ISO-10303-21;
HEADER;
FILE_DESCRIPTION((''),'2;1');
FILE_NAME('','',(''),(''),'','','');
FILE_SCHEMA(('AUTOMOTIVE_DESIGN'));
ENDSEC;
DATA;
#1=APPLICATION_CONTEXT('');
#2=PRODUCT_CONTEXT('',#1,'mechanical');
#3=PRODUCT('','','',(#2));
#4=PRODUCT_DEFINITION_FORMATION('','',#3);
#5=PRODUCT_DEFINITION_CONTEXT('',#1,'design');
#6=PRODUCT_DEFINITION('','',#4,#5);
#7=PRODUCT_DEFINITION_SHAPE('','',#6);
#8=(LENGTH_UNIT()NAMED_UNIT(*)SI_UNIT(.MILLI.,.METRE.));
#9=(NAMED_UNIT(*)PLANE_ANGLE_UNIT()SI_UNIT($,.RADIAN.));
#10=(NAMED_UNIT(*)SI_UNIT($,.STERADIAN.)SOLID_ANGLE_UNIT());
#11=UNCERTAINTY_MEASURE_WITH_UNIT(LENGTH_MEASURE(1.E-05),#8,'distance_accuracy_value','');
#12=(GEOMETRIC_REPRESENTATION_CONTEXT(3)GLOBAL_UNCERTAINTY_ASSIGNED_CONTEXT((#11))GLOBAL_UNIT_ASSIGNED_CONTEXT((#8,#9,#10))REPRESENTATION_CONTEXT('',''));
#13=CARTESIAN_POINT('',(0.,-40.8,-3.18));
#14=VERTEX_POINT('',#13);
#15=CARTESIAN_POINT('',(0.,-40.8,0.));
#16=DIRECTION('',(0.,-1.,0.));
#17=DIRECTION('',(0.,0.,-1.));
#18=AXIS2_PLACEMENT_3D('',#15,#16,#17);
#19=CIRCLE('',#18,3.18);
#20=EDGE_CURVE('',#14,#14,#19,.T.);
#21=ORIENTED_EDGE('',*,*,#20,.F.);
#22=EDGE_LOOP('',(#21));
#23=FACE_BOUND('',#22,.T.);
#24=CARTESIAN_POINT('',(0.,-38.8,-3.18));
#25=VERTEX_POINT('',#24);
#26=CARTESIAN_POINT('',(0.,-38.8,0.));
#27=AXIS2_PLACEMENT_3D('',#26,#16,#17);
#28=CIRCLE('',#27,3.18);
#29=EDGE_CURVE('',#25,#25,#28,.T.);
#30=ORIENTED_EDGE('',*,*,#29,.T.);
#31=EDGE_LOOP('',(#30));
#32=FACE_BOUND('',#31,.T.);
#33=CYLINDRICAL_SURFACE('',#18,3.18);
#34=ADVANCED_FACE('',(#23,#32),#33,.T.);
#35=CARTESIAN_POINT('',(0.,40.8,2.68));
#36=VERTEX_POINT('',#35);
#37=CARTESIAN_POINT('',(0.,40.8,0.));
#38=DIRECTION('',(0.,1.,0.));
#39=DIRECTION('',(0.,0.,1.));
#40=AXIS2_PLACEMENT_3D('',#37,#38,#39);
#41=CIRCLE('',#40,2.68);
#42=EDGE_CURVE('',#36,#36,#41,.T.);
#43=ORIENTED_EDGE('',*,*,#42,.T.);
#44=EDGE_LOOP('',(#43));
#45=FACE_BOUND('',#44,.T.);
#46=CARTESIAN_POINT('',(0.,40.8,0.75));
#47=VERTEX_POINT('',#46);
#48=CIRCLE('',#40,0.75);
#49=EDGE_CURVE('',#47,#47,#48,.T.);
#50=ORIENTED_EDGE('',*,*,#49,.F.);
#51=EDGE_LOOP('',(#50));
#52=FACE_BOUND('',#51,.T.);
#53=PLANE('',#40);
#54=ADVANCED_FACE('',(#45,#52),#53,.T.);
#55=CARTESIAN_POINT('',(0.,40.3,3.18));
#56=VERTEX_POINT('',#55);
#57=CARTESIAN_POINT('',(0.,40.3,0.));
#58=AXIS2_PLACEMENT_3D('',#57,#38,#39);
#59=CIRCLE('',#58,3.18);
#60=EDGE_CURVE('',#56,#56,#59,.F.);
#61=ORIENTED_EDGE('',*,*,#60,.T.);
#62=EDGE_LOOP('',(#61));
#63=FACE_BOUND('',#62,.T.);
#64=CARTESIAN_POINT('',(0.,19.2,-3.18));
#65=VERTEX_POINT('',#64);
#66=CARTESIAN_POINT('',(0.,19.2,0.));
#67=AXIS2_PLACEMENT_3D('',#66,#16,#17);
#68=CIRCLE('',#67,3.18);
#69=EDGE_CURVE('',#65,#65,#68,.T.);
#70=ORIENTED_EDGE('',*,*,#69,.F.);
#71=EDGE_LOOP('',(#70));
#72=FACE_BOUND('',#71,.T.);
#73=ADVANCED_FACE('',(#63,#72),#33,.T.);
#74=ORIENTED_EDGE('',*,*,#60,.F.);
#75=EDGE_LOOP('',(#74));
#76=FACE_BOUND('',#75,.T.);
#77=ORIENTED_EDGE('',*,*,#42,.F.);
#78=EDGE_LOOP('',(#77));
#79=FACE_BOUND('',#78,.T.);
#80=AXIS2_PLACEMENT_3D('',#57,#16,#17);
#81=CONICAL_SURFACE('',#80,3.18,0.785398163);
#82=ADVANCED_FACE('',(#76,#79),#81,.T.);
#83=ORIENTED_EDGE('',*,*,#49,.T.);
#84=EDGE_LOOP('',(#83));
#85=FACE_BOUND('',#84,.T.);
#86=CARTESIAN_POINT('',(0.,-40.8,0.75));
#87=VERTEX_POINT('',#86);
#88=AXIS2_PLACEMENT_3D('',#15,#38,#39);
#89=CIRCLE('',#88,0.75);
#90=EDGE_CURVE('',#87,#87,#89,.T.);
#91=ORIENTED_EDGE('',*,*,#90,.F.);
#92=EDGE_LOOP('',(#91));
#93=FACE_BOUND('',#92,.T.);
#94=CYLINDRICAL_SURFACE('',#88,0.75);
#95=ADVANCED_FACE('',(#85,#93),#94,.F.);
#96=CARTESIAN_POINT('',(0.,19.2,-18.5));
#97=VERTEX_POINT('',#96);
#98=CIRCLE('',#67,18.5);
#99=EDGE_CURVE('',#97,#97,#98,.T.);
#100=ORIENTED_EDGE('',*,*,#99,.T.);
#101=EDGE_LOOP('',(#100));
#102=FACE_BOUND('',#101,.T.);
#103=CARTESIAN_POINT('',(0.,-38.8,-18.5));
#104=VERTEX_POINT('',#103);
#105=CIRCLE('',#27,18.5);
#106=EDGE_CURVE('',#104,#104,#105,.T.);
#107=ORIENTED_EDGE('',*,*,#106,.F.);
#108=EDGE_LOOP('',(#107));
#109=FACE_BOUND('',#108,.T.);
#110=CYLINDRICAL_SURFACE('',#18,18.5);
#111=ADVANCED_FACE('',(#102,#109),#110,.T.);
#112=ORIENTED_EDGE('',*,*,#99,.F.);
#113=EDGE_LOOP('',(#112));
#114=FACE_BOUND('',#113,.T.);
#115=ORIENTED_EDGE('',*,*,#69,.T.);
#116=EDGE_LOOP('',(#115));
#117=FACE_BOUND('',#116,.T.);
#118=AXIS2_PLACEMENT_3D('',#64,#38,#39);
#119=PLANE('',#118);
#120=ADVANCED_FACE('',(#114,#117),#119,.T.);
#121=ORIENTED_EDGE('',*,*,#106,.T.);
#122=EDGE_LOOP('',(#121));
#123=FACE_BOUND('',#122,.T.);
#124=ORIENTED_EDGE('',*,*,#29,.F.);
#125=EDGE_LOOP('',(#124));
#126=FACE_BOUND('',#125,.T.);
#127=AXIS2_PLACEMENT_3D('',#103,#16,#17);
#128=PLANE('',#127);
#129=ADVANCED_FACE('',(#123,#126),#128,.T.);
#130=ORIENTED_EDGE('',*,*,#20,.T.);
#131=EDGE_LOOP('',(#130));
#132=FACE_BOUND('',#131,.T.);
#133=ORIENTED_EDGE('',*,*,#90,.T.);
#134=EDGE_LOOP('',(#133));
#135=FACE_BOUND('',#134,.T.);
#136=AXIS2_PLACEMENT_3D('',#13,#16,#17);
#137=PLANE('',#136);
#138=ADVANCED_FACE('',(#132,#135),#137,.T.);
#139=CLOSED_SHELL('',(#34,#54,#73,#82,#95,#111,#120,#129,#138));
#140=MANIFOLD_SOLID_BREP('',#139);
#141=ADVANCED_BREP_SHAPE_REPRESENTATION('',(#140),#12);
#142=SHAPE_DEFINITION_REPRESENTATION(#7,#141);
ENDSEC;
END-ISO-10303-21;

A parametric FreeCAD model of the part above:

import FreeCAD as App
import Part
import Sketcher
from FreeCAD import Vector
Q = App.Units.Quantity


def edges_at(feature, points):
    """Names of the edges that pass closest to the given points."""
    edges = feature.Shape.Edges
    near = lambda p: min(range(len(edges)), key=lambda i: edges[i].distToShape(Part.Vertex(*p))[0])
    return sorted({f"Edge{near(p) + 1}" for p in points})

doc = App.newDocument("Part")
body = doc.addObject("PartDesign::Body", "Body")

# Sketch on YZ plane
sketch1 = body.newObject("Sketcher::SketchObject", "Sketch")
sketch1.AttachmentSupport = (doc.getObject("YZ_Plane"), [""])
sketch1.MapMode = "FlatFace"
sketch1.addGeometry(Part.LineSegment(Vector(40.8, 0, 0), Vector(-40.8, 0, 0)), False)
sketch1.addGeometry(Part.LineSegment(Vector(-40.8, 0, 0), Vector(-40.8, -3.18, 0)), False)
sketch1.addGeometry(Part.LineSegment(Vector(-40.8, -3.18, 0), Vector(-38.8, -3.18, 0)), False)
sketch1.addGeometry(Part.LineSegment(Vector(-38.8, -3.18, 0), Vector(-38.8, -18.5, 0)), False)
sketch1.addGeometry(Part.LineSegment(Vector(-38.8, -18.5, 0), Vector(19.2, -18.5, 0)), False)
sketch1.addGeometry(Part.LineSegment(Vector(19.2, -18.5, 0), Vector(19.2, -3.18, 0)), False)
sketch1.addGeometry(Part.LineSegment(Vector(19.2, -3.18, 0), Vector(40.8, -3.18, 0)), False)
sketch1.addGeometry(Part.LineSegment(Vector(40.8, -3.18, 0), Vector(40.8, 0, 0)), False)
sketch1.addConstraint(Sketcher.Constraint("Coincident", 0, 2, 1, 1))
sketch1.addConstraint(Sketcher.Constraint("Coincident", 1, 2, 2, 1))
sketch1.addConstraint(Sketcher.Constraint("Coincident", 2, 2, 3, 1))
sketch1.addConstraint(Sketcher.Constraint("Coincident", 3, 2, 4, 1))
sketch1.addConstraint(Sketcher.Constraint("Coincident", 4, 2, 5, 1))
sketch1.addConstraint(Sketcher.Constraint("Coincident", 5, 2, 6, 1))
sketch1.addConstraint(Sketcher.Constraint("Coincident", 6, 2, 7, 1))
sketch1.addConstraint(Sketcher.Constraint("Coincident", 7, 2, 0, 1))
sketch1.addConstraint(Sketcher.Constraint("Horizontal", 0))
sketch1.addConstraint(Sketcher.Constraint("Vertical", 1))
sketch1.addConstraint(Sketcher.Constraint("Horizontal", 2))
sketch1.addConstraint(Sketcher.Constraint("Vertical", 3))
sketch1.addConstraint(Sketcher.Constraint("Horizontal", 4))
sketch1.addConstraint(Sketcher.Constraint("Vertical", 5))
sketch1.addConstraint(Sketcher.Constraint("Horizontal", 6))
sketch1.addConstraint(Sketcher.Constraint("Vertical", 7))
sketch1.addConstraint(Sketcher.Constraint("Symmetric", 0, 2, 7, 2, -1, 1))
sketch1.addConstraint(Sketcher.Constraint("Horizontal", 2, 2, 5, 2))
sketch1.addConstraint(Sketcher.Constraint("DistanceX", 2, 1, 2, 2, Q("2 mm")))
sketch1.addConstraint(Sketcher.Constraint("DistanceX", 4, 1, 4, 2, Q("58 mm")))
sketch1.addConstraint(Sketcher.Constraint("DistanceX", 0, 2, 0, 1, Q("81.6 mm")))
sketch1.addConstraint(Sketcher.Constraint("DistanceY", 1, 2, 1, 1, Q("3.18 mm")))
sketch1.addConstraint(Sketcher.Constraint("DistanceY", 3, 2, 3, 1, Q("15.32 mm")))
revolution = body.newObject("PartDesign::Revolution", "Revolution")
revolution.Profile = sketch1
revolution.ReferenceAxis = (sketch1, ["H_Axis"])
revolution.Angle = 360
doc.recompute()

chamfer = body.newObject("PartDesign::Chamfer", "Chamfer")
chamfer.Base = (revolution, edges_at(revolution, [(0, 40.8, 3.18)]))
chamfer.Size = 0.5

# Sketch on XZ plane
sketch2 = body.newObject("Sketcher::SketchObject", "Sketch001")
sketch2.AttachmentSupport = (doc.getObject("XZ_Plane"), [""])
sketch2.MapMode = "FlatFace"
sketch2.AttachmentOffset = App.Placement(Vector(0, 0, -40.8), App.Rotation())
sketch2.addGeometry(Part.Circle(Vector(0, 0, 0), Vector(0, 0, 1), 0.75), False)
sketch2.addConstraint(Sketcher.Constraint("Coincident", 0, 3, -1, 1))
sketch2.addConstraint(Sketcher.Constraint("Diameter", 0, Q("1.5 mm")))
pocket1 = body.newObject("PartDesign::Pocket", "Pocket")
pocket1.Profile = sketch2
pocket1.Type = "ThroughAll"
pocket1.Reversed = True

doc.recompute()
